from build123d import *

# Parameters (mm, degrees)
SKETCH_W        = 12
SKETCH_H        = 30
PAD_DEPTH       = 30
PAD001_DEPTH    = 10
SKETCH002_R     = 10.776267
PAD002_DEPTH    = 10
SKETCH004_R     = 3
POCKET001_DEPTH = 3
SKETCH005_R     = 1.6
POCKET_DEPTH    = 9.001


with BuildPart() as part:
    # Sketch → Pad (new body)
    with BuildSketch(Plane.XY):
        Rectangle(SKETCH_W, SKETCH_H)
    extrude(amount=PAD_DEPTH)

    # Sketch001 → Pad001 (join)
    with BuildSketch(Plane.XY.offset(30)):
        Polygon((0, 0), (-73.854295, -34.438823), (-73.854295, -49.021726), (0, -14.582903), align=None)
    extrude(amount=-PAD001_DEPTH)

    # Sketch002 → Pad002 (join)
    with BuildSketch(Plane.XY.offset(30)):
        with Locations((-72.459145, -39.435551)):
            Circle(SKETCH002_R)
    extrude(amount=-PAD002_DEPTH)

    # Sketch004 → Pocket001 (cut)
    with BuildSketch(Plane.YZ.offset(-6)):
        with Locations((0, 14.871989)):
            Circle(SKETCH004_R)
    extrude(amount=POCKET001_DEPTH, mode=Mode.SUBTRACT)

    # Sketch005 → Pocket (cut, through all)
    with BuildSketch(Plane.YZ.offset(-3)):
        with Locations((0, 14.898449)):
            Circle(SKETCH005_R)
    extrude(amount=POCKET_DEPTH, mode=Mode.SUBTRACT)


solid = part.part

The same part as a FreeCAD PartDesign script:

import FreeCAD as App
import Part
import Sketcher

V = App.Vector
Q = App.Units.Quantity


def add_polygon(sketch, points):
    """Adds a closed chain of lines whose ends are joined by coincident constraints."""
    first, n = sketch.GeometryCount, len(points)
    for a, b in zip(points, points[1:] + points[:1]):
        sketch.addGeometry(Part.LineSegment(App.Vector(*a, 0), App.Vector(*b, 0)), False)
    for i in range(n):
        sketch.addConstraint(Sketcher.Constraint("Coincident", first + i, 2, first + (i + 1) % n, 1))

doc = App.newDocument("Part")
body = doc.addObject("PartDesign::Body", "Body")

# Sketch on XY plane
sketch1 = body.newObject("Sketcher::SketchObject", "Sketch")
sketch1.AttachmentSupport = (doc.getObject("XY_Plane"), [""])
sketch1.MapMode = "FlatFace"
add_polygon(sketch1, [(-6, 15), (-6, -15), (6, -15), (6, 15)])  # lines 0-3
sketch1.addConstraint(Sketcher.Constraint("Vertical", 0))
sketch1.addConstraint(Sketcher.Constraint("Horizontal", 1))
sketch1.addConstraint(Sketcher.Constraint("Vertical", 2))
sketch1.addConstraint(Sketcher.Constraint("Horizontal", 3))
sketch1.addConstraint(Sketcher.Constraint("Symmetric", 0, 2, 2, 2, -1, 1))
sketch1.addConstraint(Sketcher.Constraint("DistanceX", 1, 1, 1, 2, Q("12 mm")))
sketch1.addConstraint(Sketcher.Constraint("DistanceY", 0, 2, 0, 1, Q("30 mm")))
pad1 = body.newObject("PartDesign::Pad", "Pad")
pad1.Profile = sketch1
pad1.Length = 30

# Sketch on XY plane
sketch2 = body.newObject("Sketcher::SketchObject", "Sketch001")
sketch2.AttachmentSupport = (doc.getObject("XY_Plane"), [""])
sketch2.MapMode = "FlatFace"
sketch2.AttachmentOffset = App.Placement(V(0, 0, 30), App.Rotation())
add_polygon(sketch2, [(0, 0), (-74, -34), (-74, -49), (0, -15)])  # lines 0-3
sketch2.addConstraint(Sketcher.Constraint("Vertical", 1))
sketch2.addConstraint(Sketcher.Constraint("Vertical", 3))
sketch2.addConstraint(Sketcher.Constraint("Coincident", 3, 2, -1, 1))
sketch2.addConstraint(Sketcher.Constraint("Parallel", 0, 2))
sketch2.addConstraint(Sketcher.Constraint("Angle", 0, Q("-155 deg")))
sketch2.addConstraint(Sketcher.Constraint("Distance", 0, Q("81.489198 mm")))
sketch2.addConstraint(Sketcher.Constraint("DistanceY", 1, 2, 1, 1, Q("14.582903 mm")))
pad2 = body.newObject("PartDesign::Pad", "Pad001")
pad2.Profile = sketch2
pad2.Length = 10
pad2.Reversed = True

# Sketch on XY plane
sketch3 = body.newObject("Sketcher::SketchObject", "Sketch002")
sketch3.AttachmentSupport = (doc.getObject("XY_Plane"), [""])
sketch3.MapMode = "FlatFace"
sketch3.AttachmentOffset = App.Placement(V(0, 0, 30), App.Rotation())
sketch3.addGeometry(Part.Circle(V(-72, -39, 0), V(0, 0, 1), 11), False)
sketch3.addConstraint(Sketcher.Constraint("Diameter", 0, Q("21.552534 mm")))
sketch3.addConstraint(Sketcher.Constraint("DistanceY", 0, 3, -1, 1, Q("39.435551 mm")))
sketch3.addConstraint(Sketcher.Constraint("DistanceX", 0, 3, -1, 1, Q("72.459145 mm")))
pad3 = body.newObject("PartDesign::Pad", "Pad002")
pad3.Profile = sketch3
pad3.Length = 10
pad3.Reversed = True

# Sketch on YZ plane
sketch4 = body.newObject("Sketcher::SketchObject", "Sketch003")
sketch4.AttachmentSupport = (doc.getObject("YZ_Plane"), [""])
sketch4.MapMode = "FlatFace"
sketch4.AttachmentOffset = App.Placement(V(0, 0, -6), App.Rotation())
sketch4.addGeometry(Part.Circle(V(0, 14.9, 0), V(0, 0, 1), 3), False)
sketch4.addConstraint(Sketcher.Constraint("PointOnObject", 0, 3, -2))
sketch4.addConstraint(Sketcher.Constraint("Diameter", 0, Q("6 mm")))
sketch4.addConstraint(Sketcher.Constraint("DistanceY", -1, 1, 0, 3, Q("14.871989 mm")))
pocket1 = body.newObject("PartDesign::Pocket", "Pocket")
pocket1.Profile = sketch4
pocket1.Length = 3
pocket1.Reversed = True

# Sketch on YZ plane
sketch5 = body.newObject("Sketcher::SketchObject", "Sketch004")
sketch5.AttachmentSupport = (doc.getObject("YZ_Plane"), [""])
sketch5.MapMode = "FlatFace"
sketch5.AttachmentOffset = App.Placement(V(0, 0, -3), App.Rotation())
sketch5.addGeometry(Part.Circle(V(0, 14.9, 0), V(0, 0, 1), 1.6), False)
sketch5.addConstraint(Sketcher.Constraint("PointOnObject", 0, 3, -2))
sketch5.addConstraint(Sketcher.Constraint("Diameter", 0, Q("3.2 mm")))
sketch5.addConstraint(Sketcher.Constraint("DistanceY", -1, 1, 0, 3, Q("14.898449 mm")))
pocket2 = body.newObject("PartDesign::Pocket", "Pocket001")
pocket2.Profile = sketch5
pocket2.Type = "ThroughAll"
pocket2.Reversed = True

doc.recompute()
